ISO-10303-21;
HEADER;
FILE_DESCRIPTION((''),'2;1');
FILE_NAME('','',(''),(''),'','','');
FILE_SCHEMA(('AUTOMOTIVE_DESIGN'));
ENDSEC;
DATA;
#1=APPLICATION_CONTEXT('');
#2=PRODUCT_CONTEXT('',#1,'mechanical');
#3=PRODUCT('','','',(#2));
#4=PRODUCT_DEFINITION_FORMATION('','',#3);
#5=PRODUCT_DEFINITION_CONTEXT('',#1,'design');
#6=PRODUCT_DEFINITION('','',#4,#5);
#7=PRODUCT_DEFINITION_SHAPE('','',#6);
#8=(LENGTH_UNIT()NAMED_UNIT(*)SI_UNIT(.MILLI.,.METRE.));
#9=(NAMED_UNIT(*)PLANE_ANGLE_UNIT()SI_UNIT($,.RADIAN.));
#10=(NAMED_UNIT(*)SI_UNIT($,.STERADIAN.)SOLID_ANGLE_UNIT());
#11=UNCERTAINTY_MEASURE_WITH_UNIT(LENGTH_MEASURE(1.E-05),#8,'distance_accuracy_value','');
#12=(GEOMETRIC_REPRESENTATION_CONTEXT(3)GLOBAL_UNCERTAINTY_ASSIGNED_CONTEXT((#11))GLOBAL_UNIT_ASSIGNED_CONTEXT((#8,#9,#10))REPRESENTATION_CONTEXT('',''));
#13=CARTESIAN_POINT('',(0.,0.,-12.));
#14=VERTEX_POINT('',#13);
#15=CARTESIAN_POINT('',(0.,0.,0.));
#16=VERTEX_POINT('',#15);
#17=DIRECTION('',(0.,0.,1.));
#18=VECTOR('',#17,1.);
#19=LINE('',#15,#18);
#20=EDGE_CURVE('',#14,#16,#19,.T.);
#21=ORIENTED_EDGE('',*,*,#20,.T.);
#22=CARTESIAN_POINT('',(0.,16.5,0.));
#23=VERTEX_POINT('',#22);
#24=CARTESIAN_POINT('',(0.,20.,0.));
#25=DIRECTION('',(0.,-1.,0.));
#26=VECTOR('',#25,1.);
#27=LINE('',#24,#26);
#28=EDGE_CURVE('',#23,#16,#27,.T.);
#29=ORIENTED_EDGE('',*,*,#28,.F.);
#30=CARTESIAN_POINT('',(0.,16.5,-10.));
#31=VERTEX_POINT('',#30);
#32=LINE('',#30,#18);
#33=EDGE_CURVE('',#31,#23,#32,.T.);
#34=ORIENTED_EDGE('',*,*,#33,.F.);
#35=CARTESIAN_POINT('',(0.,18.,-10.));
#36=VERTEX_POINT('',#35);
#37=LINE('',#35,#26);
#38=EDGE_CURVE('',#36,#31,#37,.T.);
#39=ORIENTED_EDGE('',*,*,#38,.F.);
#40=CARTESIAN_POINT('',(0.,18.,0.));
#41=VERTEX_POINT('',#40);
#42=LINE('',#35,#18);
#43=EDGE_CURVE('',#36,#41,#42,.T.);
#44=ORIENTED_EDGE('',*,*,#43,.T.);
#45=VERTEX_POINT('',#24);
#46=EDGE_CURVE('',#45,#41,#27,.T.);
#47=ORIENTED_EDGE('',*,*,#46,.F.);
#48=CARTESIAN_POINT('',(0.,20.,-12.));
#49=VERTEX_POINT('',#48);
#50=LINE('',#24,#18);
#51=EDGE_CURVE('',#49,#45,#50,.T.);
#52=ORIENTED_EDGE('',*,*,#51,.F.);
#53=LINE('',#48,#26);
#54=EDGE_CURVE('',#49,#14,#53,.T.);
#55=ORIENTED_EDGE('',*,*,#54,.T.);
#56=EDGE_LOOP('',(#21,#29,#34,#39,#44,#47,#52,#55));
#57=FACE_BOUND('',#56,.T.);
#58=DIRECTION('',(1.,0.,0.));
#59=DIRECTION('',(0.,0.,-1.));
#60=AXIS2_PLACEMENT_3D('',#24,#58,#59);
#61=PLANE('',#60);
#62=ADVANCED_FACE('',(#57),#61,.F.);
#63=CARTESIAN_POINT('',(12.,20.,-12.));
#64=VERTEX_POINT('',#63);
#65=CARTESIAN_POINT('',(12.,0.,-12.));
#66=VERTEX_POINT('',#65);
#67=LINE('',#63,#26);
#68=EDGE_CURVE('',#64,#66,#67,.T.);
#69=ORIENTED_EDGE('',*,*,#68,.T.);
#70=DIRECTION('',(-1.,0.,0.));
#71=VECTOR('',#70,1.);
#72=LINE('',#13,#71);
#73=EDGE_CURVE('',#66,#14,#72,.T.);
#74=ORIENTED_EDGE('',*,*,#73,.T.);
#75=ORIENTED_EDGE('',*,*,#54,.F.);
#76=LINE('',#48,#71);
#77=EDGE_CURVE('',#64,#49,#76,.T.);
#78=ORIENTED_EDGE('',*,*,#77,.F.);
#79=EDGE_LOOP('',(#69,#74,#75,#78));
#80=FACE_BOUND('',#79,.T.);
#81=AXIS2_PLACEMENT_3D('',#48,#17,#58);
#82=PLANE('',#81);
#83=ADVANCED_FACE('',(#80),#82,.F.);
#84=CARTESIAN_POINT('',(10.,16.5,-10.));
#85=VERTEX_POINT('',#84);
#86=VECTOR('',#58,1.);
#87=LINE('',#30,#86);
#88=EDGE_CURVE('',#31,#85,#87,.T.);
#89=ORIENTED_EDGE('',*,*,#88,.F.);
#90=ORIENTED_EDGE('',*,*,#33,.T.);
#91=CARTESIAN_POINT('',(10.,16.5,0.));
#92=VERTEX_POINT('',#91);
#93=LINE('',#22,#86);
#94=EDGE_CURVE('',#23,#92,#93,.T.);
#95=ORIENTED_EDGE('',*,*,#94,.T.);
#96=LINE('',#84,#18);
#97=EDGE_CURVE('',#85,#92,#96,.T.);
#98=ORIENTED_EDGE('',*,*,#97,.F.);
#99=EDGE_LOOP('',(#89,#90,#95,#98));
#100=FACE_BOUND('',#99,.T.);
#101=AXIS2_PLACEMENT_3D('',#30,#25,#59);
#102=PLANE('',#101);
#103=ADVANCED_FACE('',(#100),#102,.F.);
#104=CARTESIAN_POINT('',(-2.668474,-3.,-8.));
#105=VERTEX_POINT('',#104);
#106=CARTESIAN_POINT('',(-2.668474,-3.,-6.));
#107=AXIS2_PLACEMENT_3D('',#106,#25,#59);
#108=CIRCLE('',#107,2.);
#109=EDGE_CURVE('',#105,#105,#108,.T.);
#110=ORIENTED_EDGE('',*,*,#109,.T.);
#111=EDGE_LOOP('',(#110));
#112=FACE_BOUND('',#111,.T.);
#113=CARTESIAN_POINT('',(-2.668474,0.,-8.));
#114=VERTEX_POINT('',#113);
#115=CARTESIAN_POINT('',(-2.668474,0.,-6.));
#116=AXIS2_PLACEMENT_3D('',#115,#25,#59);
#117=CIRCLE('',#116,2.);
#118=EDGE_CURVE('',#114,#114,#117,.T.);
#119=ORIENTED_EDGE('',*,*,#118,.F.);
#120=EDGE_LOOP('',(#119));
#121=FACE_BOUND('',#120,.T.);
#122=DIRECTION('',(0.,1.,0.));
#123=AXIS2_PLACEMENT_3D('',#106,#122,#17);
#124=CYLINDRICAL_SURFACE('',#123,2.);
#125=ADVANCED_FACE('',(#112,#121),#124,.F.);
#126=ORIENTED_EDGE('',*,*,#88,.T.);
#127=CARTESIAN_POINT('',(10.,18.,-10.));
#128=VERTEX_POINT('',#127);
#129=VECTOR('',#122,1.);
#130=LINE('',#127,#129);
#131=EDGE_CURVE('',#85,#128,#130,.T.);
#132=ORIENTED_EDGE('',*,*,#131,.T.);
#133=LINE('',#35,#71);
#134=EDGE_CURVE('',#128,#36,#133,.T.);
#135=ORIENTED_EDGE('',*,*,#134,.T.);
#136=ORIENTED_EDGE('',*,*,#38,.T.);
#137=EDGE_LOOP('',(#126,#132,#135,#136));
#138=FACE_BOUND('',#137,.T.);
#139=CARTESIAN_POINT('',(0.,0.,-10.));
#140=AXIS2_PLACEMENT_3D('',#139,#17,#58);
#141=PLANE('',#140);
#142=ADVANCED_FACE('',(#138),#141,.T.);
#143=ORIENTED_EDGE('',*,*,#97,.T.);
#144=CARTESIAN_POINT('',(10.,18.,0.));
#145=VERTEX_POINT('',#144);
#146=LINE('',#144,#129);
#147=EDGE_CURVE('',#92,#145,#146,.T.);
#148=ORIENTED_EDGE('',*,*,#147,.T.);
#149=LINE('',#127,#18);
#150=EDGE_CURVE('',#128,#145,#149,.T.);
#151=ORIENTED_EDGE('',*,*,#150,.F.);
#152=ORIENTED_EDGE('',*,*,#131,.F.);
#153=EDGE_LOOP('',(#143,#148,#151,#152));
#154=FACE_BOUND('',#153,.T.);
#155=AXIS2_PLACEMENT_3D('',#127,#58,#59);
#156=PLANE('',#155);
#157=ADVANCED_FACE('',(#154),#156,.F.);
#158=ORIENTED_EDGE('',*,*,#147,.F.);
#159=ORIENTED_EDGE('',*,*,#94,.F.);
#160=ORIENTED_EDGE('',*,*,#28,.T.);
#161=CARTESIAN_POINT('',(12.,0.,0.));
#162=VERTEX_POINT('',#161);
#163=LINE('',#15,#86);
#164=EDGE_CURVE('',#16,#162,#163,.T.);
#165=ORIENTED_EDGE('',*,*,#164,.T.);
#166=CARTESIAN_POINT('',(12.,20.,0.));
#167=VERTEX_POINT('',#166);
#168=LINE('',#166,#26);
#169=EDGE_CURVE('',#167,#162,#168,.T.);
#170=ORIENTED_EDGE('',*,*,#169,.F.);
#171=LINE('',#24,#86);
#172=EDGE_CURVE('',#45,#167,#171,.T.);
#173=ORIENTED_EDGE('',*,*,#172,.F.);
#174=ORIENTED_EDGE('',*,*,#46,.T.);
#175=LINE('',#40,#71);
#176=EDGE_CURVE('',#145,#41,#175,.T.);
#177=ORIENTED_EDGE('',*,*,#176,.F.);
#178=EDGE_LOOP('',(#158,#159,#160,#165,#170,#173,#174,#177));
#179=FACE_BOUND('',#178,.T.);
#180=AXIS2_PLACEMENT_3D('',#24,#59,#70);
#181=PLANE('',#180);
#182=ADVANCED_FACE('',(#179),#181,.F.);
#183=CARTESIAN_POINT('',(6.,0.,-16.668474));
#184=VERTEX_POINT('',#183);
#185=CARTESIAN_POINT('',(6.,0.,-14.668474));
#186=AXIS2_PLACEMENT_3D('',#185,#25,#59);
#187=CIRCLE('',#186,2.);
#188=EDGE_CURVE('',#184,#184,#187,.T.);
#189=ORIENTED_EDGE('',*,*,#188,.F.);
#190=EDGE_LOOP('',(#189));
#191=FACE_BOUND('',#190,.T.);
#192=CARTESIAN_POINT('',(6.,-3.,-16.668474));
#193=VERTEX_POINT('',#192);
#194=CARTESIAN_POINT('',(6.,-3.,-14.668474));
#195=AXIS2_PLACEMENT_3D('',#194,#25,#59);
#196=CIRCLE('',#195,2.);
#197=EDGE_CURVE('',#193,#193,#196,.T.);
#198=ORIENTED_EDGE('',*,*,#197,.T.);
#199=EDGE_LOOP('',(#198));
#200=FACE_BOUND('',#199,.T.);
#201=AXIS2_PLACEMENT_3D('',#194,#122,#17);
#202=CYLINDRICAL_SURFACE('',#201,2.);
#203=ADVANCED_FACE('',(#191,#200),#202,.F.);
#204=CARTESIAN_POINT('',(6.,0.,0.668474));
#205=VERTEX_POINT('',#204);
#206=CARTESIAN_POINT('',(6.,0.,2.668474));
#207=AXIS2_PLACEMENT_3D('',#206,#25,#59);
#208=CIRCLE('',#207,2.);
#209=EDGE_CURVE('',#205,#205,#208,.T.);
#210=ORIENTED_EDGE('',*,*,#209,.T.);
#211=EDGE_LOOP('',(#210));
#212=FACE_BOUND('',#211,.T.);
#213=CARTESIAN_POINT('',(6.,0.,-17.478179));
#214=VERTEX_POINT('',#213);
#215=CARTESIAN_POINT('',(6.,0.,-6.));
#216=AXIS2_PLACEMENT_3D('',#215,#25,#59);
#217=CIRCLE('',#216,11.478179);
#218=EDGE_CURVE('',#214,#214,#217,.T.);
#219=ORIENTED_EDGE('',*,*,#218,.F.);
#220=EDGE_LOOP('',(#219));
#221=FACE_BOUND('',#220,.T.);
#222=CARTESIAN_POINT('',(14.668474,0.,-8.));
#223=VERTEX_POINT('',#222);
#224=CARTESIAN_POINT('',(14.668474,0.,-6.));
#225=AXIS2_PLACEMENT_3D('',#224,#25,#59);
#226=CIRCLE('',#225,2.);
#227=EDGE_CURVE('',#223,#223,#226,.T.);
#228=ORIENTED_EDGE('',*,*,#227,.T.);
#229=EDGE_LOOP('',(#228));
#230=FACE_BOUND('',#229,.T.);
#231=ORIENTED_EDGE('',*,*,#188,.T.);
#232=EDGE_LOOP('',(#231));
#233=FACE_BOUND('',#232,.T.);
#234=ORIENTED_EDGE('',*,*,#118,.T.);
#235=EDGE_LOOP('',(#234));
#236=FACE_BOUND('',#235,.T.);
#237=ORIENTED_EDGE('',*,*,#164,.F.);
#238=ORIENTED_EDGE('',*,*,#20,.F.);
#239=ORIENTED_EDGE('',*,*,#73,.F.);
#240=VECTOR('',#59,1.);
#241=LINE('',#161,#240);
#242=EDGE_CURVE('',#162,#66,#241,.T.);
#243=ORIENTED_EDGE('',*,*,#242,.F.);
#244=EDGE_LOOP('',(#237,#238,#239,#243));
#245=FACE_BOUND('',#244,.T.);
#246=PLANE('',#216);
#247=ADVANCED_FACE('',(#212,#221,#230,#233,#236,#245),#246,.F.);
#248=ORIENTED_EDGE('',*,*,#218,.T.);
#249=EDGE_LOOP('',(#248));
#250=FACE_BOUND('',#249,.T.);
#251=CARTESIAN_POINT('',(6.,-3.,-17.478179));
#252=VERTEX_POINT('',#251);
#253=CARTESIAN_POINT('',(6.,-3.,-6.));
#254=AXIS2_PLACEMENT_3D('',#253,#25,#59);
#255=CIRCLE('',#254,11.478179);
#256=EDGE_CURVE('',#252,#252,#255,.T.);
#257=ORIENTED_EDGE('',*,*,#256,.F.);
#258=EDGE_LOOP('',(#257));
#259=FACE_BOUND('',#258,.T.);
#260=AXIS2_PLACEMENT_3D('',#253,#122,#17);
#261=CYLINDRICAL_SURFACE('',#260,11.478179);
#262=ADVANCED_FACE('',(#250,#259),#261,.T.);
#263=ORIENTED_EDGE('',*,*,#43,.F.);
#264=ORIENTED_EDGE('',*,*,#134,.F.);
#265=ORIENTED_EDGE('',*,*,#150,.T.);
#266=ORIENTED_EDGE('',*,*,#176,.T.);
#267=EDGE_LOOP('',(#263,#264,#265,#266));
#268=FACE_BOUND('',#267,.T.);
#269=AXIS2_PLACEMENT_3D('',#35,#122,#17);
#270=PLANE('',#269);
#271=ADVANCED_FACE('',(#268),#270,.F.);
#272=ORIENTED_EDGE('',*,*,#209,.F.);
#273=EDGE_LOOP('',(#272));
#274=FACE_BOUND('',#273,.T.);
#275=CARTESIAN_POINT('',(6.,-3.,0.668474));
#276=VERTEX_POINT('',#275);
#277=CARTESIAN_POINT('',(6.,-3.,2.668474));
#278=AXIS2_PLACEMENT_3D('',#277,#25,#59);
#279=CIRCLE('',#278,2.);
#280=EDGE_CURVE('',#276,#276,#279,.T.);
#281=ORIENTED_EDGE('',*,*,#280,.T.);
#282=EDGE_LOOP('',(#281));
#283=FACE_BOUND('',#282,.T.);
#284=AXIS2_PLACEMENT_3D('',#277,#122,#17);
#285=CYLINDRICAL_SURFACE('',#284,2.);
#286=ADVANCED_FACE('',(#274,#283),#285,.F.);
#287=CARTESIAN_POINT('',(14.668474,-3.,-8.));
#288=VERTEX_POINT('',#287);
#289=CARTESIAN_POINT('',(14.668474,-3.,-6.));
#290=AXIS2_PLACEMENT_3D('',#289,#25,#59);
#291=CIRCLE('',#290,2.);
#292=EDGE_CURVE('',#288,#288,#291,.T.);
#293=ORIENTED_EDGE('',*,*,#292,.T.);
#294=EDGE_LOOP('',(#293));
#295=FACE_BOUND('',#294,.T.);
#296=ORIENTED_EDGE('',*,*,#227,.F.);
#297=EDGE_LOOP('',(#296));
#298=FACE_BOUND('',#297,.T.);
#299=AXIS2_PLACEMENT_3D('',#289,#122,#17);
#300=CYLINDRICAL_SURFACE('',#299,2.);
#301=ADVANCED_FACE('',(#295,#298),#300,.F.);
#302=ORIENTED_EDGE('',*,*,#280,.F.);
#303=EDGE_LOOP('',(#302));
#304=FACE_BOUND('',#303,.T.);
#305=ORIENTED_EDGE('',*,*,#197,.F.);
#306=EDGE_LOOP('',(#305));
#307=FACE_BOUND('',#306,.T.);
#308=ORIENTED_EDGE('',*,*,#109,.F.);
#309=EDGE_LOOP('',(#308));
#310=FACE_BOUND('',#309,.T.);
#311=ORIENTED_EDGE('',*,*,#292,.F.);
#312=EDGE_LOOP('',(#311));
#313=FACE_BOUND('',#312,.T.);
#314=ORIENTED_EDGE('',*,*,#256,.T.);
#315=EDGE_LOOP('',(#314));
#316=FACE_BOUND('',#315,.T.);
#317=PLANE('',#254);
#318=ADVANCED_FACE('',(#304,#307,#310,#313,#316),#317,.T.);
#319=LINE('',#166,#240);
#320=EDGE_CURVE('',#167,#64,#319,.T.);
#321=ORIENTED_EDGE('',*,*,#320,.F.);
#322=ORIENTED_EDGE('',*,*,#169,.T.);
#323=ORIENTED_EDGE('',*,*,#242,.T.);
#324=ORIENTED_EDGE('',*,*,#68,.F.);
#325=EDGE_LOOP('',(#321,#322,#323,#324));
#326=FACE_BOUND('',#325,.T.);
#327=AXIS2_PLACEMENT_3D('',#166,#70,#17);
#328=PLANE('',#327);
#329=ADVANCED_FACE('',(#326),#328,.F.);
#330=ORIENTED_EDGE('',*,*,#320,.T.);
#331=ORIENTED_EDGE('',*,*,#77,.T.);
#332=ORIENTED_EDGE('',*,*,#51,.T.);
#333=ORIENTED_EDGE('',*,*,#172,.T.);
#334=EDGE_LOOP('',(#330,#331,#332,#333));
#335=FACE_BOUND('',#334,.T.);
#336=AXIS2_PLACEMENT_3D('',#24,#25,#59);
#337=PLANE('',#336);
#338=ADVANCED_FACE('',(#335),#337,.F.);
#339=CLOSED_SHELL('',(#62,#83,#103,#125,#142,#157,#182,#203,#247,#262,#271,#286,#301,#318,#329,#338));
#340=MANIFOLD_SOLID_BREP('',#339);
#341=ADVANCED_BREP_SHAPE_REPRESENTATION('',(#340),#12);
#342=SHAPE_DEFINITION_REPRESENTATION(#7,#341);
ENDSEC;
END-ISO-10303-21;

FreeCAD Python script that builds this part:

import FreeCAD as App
import Part
import Sketcher
Q = App.Units.Quantity

doc = App.newDocument("Part")
body = doc.addObject("PartDesign::Body", "Body")

# Sketch on XZ plane
sketch1 = body.newObject("Sketcher::SketchObject", "Sketch")
sketch1.AttachmentSupport = (doc.getObject("XZ_Plane"), [""])
sketch1.MapMode = "FlatFace"
sketch1.addGeometry([
    Part.LineSegment(App.Vector(0, -12, 0), App.Vector(0, 0, 0)),
    Part.LineSegment(App.Vector(0, 0, 0), App.Vector(12, 0, 0)),
    Part.LineSegment(App.Vector(12, 0, 0), App.Vector(12, -12, 0)),
    Part.LineSegment(App.Vector(12, -12, 0), App.Vector(0, -12, 0)),
], False)
sketch1.addConstraint([
    Sketcher.Constraint("Coincident", 0, 2, 1, 1),
    Sketcher.Constraint("Coincident", 1, 2, 2, 1),
    Sketcher.Constraint("Coincident", 2, 2, 3, 1),
    Sketcher.Constraint("Coincident", 3, 2, 0, 1),
    Sketcher.Constraint("Vertical", 0),
    Sketcher.Constraint("Horizontal", 1),
    Sketcher.Constraint("Vertical", 2),
    Sketcher.Constraint("Horizontal", 3),
    Sketcher.Constraint("Coincident", 0, 2, -1, 1),
    Sketcher.Constraint("Equal", 3, 0),
    Sketcher.Constraint("DistanceX", 1, 1, 1, 2, Q("12 mm")),
])
pad1 = body.newObject("PartDesign::Pad", "Pad")
pad1.Profile = sketch1
pad1.Length = 20
pad1.Reversed = True

# Sketch on XY plane
sketch2 = body.newObject("Sketcher::SketchObject", "Sketch001")
sketch2.AttachmentSupport = (doc.getObject("XY_Plane"), [""])
sketch2.MapMode = "FlatFace"
sketch2.addGeometry([
    Part.LineSegment(App.Vector(0, 18, 0), App.Vector(0, 16.5, 0)),
    Part.LineSegment(App.Vector(0, 16.5, 0), App.Vector(10, 16.5, 0)),
    Part.LineSegment(App.Vector(10, 16.5, 0), App.Vector(10, 18, 0)),
    Part.LineSegment(App.Vector(10, 18, 0), App.Vector(0, 18, 0)),
], False)
sketch2.addConstraint([
    Sketcher.Constraint("Coincident", 0, 2, 1, 1),
    Sketcher.Constraint("Coincident", 1, 2, 2, 1),
    Sketcher.Constraint("Coincident", 2, 2, 3, 1),
    Sketcher.Constraint("Coincident", 3, 2, 0, 1),
    Sketcher.Constraint("Vertical", 0),
    Sketcher.Constraint("Horizontal", 1),
    Sketcher.Constraint("Vertical", 2),
    Sketcher.Constraint("Horizontal", 3),
    Sketcher.Constraint("PointOnObject", 0, 2, -2),
    Sketcher.Constraint("DistanceX", 1, 1, 1, 2, Q("10 mm")),
    Sketcher.Constraint("DistanceY", 0, 2, 0, 1, Q("1.5 mm")),
    Sketcher.Constraint("DistanceY", -1, 1, 2, 2, Q("18 mm")),
])
pocket1 = body.newObject("PartDesign::Pocket", "Pocket")
pocket1.Profile = sketch2
pocket1.Length = 10

# Sketch on XZ plane
sketch3 = body.newObject("Sketcher::SketchObject", "Sketch002")
sketch3.AttachmentSupport = (doc.getObject("XZ_Plane"), [""])
sketch3.MapMode = "FlatFace"
sketch3.addGeometry([
    Part.Circle(App.Vector(6, -6, 0), App.Vector(0, 0, 1), 11.478179),  # 0
    Part.Circle(App.Vector(6, 2.668474, 0), App.Vector(0, 0, 1), 2),  # 1
    Part.Circle(App.Vector(-2.668474, -6, 0), App.Vector(0, 0, 1), 2),  # 2
    Part.Circle(App.Vector(14.668474, -6, 0), App.Vector(0, 0, 1), 2),  # 3
    Part.Circle(App.Vector(6, -14.668474, 0), App.Vector(0, 0, 1), 2),  # 4
], False)
sketch3.addConstraint([
    Sketcher.Constraint("Equal", 1, 2),
    Sketcher.Constraint("Equal", 2, 3),
    Sketcher.Constraint("Equal", 3, 4),
    Sketcher.Constraint("Horizontal", 0, 3, 2, 3),
    Sketcher.Constraint("Horizontal", 2, 3, 3, 3),
    Sketcher.Constraint("Vertical", 0, 3, 1, 3),
    Sketcher.Constraint("Vertical", 1, 3, 4, 3),
    Sketcher.Constraint("Diameter", 1, Q("4 mm")),
    Sketcher.Constraint("DistanceX", -1, 1, 0, 3, Q("6 mm")),
    Sketcher.Constraint("DistanceY", 0, 3, -1, 1, Q("6 mm")),
    Sketcher.Constraint("Diameter", 0, Q("22.956358 mm")),
    Sketcher.Constraint("DistanceX", 2, 3, 3, 3, Q("17.336949 mm")),
    Sketcher.Constraint("DistanceY", 4, 3, 1, 3, Q("17.336949 mm")),
    Sketcher.Constraint("DistanceY", -1, 1, 1, 3, Q("2.668474 mm")),
    Sketcher.Constraint("DistanceX", 2, 3, -1, 1, Q("2.668474 mm")),
])
pad2 = body.newObject("PartDesign::Pad", "Pad001")
pad2.Profile = sketch3
pad2.Length = 3

doc.recompute()
